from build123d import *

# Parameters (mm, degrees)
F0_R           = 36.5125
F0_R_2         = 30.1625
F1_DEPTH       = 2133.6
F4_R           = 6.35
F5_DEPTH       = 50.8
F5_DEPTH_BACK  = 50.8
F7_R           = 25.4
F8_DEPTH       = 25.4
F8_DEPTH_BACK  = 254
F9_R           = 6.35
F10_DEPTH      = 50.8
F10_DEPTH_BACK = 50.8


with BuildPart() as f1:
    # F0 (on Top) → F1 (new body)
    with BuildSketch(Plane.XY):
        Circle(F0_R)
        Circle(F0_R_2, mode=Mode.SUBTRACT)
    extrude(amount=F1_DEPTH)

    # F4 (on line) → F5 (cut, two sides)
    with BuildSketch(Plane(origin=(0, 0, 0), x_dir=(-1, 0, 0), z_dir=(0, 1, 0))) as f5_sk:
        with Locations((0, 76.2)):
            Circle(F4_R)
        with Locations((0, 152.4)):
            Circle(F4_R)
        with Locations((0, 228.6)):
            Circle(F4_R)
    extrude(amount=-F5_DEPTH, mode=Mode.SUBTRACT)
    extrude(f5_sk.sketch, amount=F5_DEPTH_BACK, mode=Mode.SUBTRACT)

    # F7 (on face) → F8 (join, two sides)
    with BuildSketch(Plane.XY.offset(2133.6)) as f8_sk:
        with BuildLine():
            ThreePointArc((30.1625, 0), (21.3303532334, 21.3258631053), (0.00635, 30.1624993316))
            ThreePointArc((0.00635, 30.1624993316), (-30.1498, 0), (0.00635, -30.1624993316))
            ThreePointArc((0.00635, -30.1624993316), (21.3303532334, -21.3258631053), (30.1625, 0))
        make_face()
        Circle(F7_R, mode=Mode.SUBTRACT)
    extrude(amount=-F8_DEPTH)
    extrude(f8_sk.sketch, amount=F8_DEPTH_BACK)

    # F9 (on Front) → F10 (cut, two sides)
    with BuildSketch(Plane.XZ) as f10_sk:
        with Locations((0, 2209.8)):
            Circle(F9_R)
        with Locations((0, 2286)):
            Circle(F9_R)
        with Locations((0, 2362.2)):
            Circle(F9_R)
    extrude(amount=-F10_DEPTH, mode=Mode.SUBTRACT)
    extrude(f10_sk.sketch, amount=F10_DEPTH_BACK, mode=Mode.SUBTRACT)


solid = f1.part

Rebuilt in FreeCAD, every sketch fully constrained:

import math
import FreeCAD as App
import Part
import Sketcher
Q = App.Units.Quantity

doc = App.newDocument("Part")
body = doc.addObject("PartDesign::Body", "Body")

# Sketch on XY plane
sketch1 = doc.addObject("Sketcher::SketchObject", "Sketch")
body.addObject(sketch1)
sketch1.AttachmentSupport = (doc.XY_Plane, [""])
sketch1.MapMode = "FlatFace"
sketch1.addGeometry([
    Part.Circle(App.Vector(0, 0, 0), App.Vector(0, 0, 1), 36.5125),
    Part.Circle(App.Vector(0, 0, 0), App.Vector(0, 0, 1), 30.1625),
], False)
sketch1.addConstraint([
    Sketcher.Constraint("Coincident", 0, 3, -1, 1),
    Sketcher.Constraint("Coincident", 1, 3, -1, 1),
    Sketcher.Constraint("Diameter", 0, Q("2.875 in")),
    Sketcher.Constraint("Diameter", 1, Q("2.375 in")),
])
pad1 = doc.addObject("PartDesign::Pad", "Pad")
body.addObject(pad1)
pad1.Profile = sketch1
pad1.Length = Q("84 in")

# Sketch on XZ plane
sketch2 = doc.addObject("Sketcher::SketchObject", "Sketch001")
body.addObject(sketch2)
sketch2.AttachmentSupport = (doc.XZ_Plane, [""])
sketch2.MapMode = "FlatFace"
sketch2.addGeometry([
    Part.Circle(App.Vector(0, 76.2, 0), App.Vector(0, 0, 1), 6.35),
    Part.Circle(App.Vector(0, 152.4, 0), App.Vector(0, 0, 1), 6.35),
    Part.Circle(App.Vector(0, 228.6, 0), App.Vector(0, 0, 1), 6.35),
], False)
sketch2.addConstraint([
    Sketcher.Constraint("Equal", 0, 1),
    Sketcher.Constraint("Equal", 1, 2),
    Sketcher.Constraint("PointOnObject", 0, 3, -2),
    Sketcher.Constraint("PointOnObject", 1, 3, -2),
    Sketcher.Constraint("PointOnObject", 2, 3, -2),
    Sketcher.Constraint("Diameter", 0, Q("0.5 in")),
    Sketcher.Constraint("DistanceY", -1, 1, 0, 3, Q("3 in")),
    Sketcher.Constraint("DistanceY", -1, 1, 1, 3, Q("6 in")),
    Sketcher.Constraint("DistanceY", -1, 1, 2, 3, Q("9 in")),
])
pocket1 = doc.addObject("PartDesign::Pocket", "Pocket")
body.addObject(pocket1)
pocket1.Profile = sketch2
pocket1.Type = "ThroughAll"
pocket1.Midplane = True

# Sketch on XY plane
sketch3 = doc.addObject("Sketcher::SketchObject", "Sketch002")
body.addObject(sketch3)
sketch3.AttachmentSupport = (doc.XY_Plane, [""])
sketch3.MapMode = "FlatFace"
sketch3.AttachmentOffset = App.Placement(App.Vector(0, 0, 84 * 25.4), App.Rotation())
sketch3.addGeometry([
    Part.ArcOfCircle(Part.Circle(App.Vector(0, 0, 0), App.Vector(0, 0, 1), 30.1625), math.radians(0), math.radians(89.987938)),
    Part.ArcOfCircle(Part.Circle(App.Vector(0.0127, 0, 0), App.Vector(0, 0, 1), 30.1625), math.radians(90.012062), math.radians(269.987938)),
    Part.ArcOfCircle(Part.Circle(App.Vector(0, 0, 0), App.Vector(0, 0, 1), 30.1625), math.radians(-89.987938), math.radians(0)),
    Part.Circle(App.Vector(0, 0, 0), App.Vector(0, 0, 1), 25.4),
], False)
sketch3.addConstraint([
    Sketcher.Constraint("Coincident", 0, 2, 1, 1),
    Sketcher.Constraint("Coincident", 1, 2, 2, 1),
    Sketcher.Constraint("Tangent", 2, 2, 0, 1),
    Sketcher.Constraint("Coincident", 0, 3, -1, 1),
    Sketcher.Constraint("Coincident", 3, 3, -1, 1),
    Sketcher.Constraint("Equal", 0, 1),
    Sketcher.Constraint("Equal", 1, 2),
    Sketcher.Constraint("PointOnObject", 1, 3, -1),
    Sketcher.Constraint("PointOnObject", 2, 2, -1),
    Sketcher.Constraint("Diameter", 3, Q("2 in")),
    Sketcher.Constraint("Radius", 0, Q("1.1875 in")),
    Sketcher.Constraint("DistanceX", 1, 3, 2, 2, Q("1.187 in")),
])
pad2 = doc.addObject("PartDesign::Pad", "Pad001")
body.addObject(pad2)
pad2.Profile = sketch3
pad2.Type = "TwoLengths"
pad2.Length = Q("1 in")
pad2.Length2 = Q("10 in")
pad2.Reversed = True

# Sketch on XZ plane
sketch4 = doc.addObject("Sketcher::SketchObject", "Sketch003")
body.addObject(sketch4)
sketch4.AttachmentSupport = (doc.XZ_Plane, [""])
sketch4.MapMode = "FlatFace"
sketch4.addGeometry([
    Part.Circle(App.Vector(0, 2209.8, 0), App.Vector(0, 0, 1), 6.35),
    Part.Circle(App.Vector(0, 2286, 0), App.Vector(0, 0, 1), 6.35),
    Part.Circle(App.Vector(0, 2362.2, 0), App.Vector(0, 0, 1), 6.35),
], False)
sketch4.addConstraint([
    Sketcher.Constraint("Equal", 0, 1),
    Sketcher.Constraint("Equal", 1, 2),
    Sketcher.Constraint("PointOnObject", 0, 3, -2),
    Sketcher.Constraint("PointOnObject", 1, 3, -2),
    Sketcher.Constraint("PointOnObject", 2, 3, -2),
    Sketcher.Constraint("Diameter", 0, Q("0.5 in")),
    Sketcher.Constraint("DistanceY", -1, 1, 0, 3, Q("87 in")),
    Sketcher.Constraint("DistanceY", -1, 1, 1, 3, Q("90 in")),
    Sketcher.Constraint("DistanceY", -1, 1, 2, 3, Q("93 in")),
])
pocket2 = doc.addObject("PartDesign::Pocket", "Pocket001")
body.addObject(pocket2)
pocket2.Profile = sketch4
pocket2.Type = "ThroughAll"
pocket2.Midplane = True

doc.recompute()
